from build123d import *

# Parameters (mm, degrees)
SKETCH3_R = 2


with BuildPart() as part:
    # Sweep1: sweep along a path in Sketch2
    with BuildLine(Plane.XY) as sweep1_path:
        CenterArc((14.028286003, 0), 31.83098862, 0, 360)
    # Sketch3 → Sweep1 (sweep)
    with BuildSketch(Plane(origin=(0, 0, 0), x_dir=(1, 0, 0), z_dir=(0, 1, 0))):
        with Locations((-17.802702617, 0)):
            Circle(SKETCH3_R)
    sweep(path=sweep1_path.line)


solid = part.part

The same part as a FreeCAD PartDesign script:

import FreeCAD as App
import Part
import Sketcher
Q = App.Units.Quantity

doc = App.newDocument("Part")
body = doc.addObject("PartDesign::Body", "Body")

sketch1 = body.newObject("Sketcher::SketchObject", "Sketch")
sketch1.AttachmentSupport = (doc.getObject("XZ_Plane"), [""])
sketch1.MapMode = "FlatFace"
sketch1.addGeometry(Part.Circle(App.Vector(-17.8, 0, 0), App.Vector(0, 0, 1), 2), False)
sketch1.addConstraint([
    Sketcher.Constraint("PointOnObject", 0, 3, -1),
    Sketcher.Constraint("Diameter", 0, Q("4 mm")),
    Sketcher.Constraint("DistanceX", 0, 3, -1, 1, Q("17.802703 mm")),
])

sketch2 = body.newObject("Sketcher::SketchObject", "Sketch001")
sketch2.AttachmentSupport = (doc.getObject("XY_Plane"), [""])
sketch2.MapMode = "FlatFace"
sketch2.addGeometry(Part.Circle(App.Vector(14, 0, 0), App.Vector(0, 0, 1), 32), False)
sketch2.addConstraint([
    Sketcher.Constraint("PointOnObject", 0, 3, -1),
    Sketcher.Constraint("Diameter", 0, Q("63.661977 mm")),
    Sketcher.Constraint("DistanceX", -1, 1, 0, 3, Q("14.028286 mm")),
])
doc.recompute()

additivepipe = body.newObject("PartDesign::AdditivePipe", "AdditivePipe")
additivepipe.Profile = sketch1
additivepipe.Spine = (sketch2, ["Edge1"])

doc.recompute()
